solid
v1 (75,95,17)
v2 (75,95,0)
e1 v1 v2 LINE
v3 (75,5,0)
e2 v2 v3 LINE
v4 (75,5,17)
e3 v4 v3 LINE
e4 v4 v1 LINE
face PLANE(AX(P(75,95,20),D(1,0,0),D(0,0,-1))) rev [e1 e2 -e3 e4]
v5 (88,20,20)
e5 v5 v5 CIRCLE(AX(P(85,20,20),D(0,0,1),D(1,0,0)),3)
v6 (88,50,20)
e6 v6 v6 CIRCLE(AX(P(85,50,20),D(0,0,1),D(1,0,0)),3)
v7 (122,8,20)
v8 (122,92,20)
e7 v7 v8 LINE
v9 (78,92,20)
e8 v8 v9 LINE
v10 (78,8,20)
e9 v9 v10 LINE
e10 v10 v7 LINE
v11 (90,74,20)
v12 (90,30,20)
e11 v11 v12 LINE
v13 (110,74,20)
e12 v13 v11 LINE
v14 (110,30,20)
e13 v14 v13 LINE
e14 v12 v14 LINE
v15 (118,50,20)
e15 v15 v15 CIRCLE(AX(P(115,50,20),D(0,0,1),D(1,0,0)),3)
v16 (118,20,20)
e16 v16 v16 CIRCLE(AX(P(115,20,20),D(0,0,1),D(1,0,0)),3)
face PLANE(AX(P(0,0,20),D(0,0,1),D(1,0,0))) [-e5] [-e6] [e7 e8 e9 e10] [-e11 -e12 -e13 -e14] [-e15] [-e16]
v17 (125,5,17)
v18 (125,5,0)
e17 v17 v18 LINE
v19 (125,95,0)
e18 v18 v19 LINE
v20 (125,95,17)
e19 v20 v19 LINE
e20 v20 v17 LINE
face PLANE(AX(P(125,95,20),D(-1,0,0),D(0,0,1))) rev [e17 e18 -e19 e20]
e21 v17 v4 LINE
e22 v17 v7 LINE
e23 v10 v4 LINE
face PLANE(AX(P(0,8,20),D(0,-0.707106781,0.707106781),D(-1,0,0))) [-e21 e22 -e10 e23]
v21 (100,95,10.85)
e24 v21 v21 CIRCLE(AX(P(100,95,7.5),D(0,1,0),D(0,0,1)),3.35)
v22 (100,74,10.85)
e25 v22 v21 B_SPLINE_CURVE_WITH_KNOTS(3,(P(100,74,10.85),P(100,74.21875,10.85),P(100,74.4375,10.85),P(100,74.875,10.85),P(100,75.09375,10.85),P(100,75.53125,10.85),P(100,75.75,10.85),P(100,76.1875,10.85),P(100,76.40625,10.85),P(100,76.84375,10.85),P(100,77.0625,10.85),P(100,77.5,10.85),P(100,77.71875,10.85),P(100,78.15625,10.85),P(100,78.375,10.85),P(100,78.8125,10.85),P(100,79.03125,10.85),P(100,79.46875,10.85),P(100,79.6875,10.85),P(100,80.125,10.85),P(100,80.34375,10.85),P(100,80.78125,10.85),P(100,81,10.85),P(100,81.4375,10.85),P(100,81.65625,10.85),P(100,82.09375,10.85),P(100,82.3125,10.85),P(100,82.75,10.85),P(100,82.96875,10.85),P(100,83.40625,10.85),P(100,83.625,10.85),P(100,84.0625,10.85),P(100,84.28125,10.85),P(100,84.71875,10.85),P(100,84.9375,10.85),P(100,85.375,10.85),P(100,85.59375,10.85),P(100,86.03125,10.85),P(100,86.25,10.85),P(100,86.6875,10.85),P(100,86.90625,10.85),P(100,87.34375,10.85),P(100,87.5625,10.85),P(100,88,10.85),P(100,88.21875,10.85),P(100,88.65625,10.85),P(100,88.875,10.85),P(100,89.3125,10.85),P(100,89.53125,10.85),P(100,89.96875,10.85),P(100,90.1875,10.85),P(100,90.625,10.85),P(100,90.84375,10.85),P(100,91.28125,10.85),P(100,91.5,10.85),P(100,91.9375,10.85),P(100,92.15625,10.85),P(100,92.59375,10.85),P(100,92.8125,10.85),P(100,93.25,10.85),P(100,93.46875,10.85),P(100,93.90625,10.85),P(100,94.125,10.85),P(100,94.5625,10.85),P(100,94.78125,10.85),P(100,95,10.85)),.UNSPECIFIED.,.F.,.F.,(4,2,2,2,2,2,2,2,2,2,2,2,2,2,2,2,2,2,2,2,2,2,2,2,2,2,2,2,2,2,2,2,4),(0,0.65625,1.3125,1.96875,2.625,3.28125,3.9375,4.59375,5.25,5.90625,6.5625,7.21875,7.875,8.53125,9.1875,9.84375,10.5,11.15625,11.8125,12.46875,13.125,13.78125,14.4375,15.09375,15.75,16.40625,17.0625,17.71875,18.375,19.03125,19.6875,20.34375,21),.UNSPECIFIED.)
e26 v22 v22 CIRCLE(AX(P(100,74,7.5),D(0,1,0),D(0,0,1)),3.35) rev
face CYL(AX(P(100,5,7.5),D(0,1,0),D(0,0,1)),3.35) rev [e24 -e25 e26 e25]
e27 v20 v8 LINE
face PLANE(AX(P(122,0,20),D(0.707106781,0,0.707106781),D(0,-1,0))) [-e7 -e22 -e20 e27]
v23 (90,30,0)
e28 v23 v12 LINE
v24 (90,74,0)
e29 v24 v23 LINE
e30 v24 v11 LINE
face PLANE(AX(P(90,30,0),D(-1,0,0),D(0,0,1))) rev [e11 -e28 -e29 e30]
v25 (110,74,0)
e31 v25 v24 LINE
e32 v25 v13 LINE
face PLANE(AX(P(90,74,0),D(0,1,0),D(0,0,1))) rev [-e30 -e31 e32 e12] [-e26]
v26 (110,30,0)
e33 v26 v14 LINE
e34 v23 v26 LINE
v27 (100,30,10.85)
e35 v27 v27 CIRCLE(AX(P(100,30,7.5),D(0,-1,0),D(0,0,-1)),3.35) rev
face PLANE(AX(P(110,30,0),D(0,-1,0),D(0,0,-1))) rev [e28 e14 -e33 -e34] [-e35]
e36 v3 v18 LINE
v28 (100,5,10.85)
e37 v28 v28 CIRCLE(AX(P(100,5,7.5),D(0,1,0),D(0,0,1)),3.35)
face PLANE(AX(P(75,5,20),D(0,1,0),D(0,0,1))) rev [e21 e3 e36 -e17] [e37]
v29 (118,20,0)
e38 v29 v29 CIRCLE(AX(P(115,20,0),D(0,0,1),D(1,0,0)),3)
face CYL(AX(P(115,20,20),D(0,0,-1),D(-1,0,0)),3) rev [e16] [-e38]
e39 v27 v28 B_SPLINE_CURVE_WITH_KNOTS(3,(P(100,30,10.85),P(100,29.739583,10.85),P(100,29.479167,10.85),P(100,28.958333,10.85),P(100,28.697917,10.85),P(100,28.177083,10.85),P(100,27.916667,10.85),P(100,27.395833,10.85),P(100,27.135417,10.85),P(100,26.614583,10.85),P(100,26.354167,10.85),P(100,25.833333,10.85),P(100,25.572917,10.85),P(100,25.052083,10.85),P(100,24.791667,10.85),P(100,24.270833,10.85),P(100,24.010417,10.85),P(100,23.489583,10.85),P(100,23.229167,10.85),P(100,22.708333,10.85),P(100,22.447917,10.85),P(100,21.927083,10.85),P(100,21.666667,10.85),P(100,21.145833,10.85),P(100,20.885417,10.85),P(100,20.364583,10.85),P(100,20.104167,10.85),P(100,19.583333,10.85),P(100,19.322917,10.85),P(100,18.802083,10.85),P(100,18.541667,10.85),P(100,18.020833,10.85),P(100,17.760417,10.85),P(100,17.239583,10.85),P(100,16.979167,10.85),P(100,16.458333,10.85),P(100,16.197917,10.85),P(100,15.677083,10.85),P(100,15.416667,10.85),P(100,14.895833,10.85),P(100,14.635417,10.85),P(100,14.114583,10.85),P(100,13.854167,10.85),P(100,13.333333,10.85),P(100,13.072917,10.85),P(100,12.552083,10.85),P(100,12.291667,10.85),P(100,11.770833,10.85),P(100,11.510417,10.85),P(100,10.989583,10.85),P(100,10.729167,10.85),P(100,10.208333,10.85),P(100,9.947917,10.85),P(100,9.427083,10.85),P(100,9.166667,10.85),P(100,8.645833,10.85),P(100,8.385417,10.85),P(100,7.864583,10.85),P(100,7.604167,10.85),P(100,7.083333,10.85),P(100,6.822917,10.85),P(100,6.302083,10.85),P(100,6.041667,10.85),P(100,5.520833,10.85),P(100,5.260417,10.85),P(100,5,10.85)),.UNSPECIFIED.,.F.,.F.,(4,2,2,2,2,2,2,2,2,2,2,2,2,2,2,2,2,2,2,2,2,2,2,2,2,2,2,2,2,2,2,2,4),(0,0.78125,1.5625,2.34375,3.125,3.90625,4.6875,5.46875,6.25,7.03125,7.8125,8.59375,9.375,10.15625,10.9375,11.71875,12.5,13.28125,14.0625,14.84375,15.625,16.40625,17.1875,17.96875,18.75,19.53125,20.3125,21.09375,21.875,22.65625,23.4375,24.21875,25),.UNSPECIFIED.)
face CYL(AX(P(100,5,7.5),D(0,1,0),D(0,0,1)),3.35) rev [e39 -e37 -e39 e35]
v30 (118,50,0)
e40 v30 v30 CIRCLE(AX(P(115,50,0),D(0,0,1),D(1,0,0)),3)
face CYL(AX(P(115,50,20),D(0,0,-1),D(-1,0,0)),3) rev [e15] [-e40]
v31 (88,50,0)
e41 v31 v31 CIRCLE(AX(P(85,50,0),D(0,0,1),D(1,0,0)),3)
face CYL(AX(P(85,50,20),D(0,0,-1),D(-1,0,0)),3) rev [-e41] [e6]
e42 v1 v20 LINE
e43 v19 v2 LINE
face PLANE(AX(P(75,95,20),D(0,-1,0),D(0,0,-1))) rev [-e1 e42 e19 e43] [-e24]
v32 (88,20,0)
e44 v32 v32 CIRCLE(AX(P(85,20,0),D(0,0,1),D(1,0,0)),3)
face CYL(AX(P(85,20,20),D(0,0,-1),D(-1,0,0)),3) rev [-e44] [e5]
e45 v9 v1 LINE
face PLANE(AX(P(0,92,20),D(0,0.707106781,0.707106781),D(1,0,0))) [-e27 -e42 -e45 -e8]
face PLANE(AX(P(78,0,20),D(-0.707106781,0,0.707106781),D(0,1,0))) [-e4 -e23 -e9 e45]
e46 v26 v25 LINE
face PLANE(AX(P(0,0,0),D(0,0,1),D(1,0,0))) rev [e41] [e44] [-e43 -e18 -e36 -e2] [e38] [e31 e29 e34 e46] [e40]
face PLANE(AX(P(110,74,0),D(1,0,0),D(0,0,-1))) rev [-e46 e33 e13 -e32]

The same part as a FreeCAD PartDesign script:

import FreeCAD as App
import Part
import Sketcher
Q = App.Units.Quantity


def edges_at(feature, points):
    """Names of the edges that pass closest to the given points."""
    edges = feature.Shape.Edges
    near = lambda p: min(range(len(edges)), key=lambda i: edges[i].distToShape(Part.Vertex(*p))[0])
    return sorted({f"Edge{near(p) + 1}" for p in points})

doc = App.newDocument("Part")
body = doc.addObject("PartDesign::Body", "Body")

# Sketch on XY plane
sketch1 = body.newObject("Sketcher::SketchObject", "Sketch")
sketch1.AttachmentSupport = (doc.getObject("XY_Plane"), [""])
sketch1.MapMode = "FlatFace"
sketch1.addGeometry([
    Part.LineSegment(App.Vector(75, 95, 0), App.Vector(75, 5, 0)),  # 0
    Part.LineSegment(App.Vector(75, 5, 0), App.Vector(125, 5, 0)),  # 1
    Part.LineSegment(App.Vector(125, 5, 0), App.Vector(125, 95, 0)),  # 2
    Part.LineSegment(App.Vector(125, 95, 0), App.Vector(75, 95, 0)),  # 3
    Part.Circle(App.Vector(85, 20, 0), App.Vector(0, 0, 1), 3),  # 4
    Part.Circle(App.Vector(115, 20, 0), App.Vector(0, 0, 1), 3),  # 5
    Part.Circle(App.Vector(85, 50, 0), App.Vector(0, 0, 1), 3),  # 6
    Part.Circle(App.Vector(115, 50, 0), App.Vector(0, 0, 1), 3),  # 7
], False)
sketch1.addConstraint([
    Sketcher.Constraint("Coincident", 0, 2, 1, 1),
    Sketcher.Constraint("Coincident", 1, 2, 2, 1),
    Sketcher.Constraint("Coincident", 2, 2, 3, 1),
    Sketcher.Constraint("Coincident", 3, 2, 0, 1),
    Sketcher.Constraint("Vertical", 0),
    Sketcher.Constraint("Horizontal", 1),
    Sketcher.Constraint("Vertical", 2),
    Sketcher.Constraint("Horizontal", 3),
    Sketcher.Constraint("Equal", 4, 5),
    Sketcher.Constraint("Equal", 5, 6),
    Sketcher.Constraint("Equal", 6, 7),
    Sketcher.Constraint("Horizontal", 4, 3, 5, 3),
    Sketcher.Constraint("Horizontal", 6, 3, 7, 3),
    Sketcher.Constraint("Vertical", 4, 3, 6, 3),
    Sketcher.Constraint("Vertical", 5, 3, 7, 3),
    Sketcher.Constraint("Diameter", 4, Q("6 mm")),
    Sketcher.Constraint("DistanceX", 1, 1, 1, 2, Q("50 mm")),
    Sketcher.Constraint("DistanceY", 0, 2, 0, 1, Q("90 mm")),
    Sketcher.Constraint("DistanceX", -1, 1, 4, 3, Q("85 mm")),
    Sketcher.Constraint("DistanceY", -1, 1, 4, 3, Q("20 mm")),
    Sketcher.Constraint("DistanceX", -1, 1, 5, 3, Q("115 mm")),
    Sketcher.Constraint("DistanceY", -1, 1, 6, 3, Q("50 mm")),
    Sketcher.Constraint("DistanceX", -1, 1, 0, 2, Q("75 mm")),
    Sketcher.Constraint("DistanceY", -1, 1, 0, 2, Q("5 mm")),
])
pad1 = body.newObject("PartDesign::Pad", "Pad")
pad1.Profile = sketch1
pad1.Length = 20

# Sketch on XZ plane
sketch2 = body.newObject("Sketcher::SketchObject", "Sketch001")
sketch2.AttachmentSupport = (doc.getObject("XZ_Plane"), [""])
sketch2.MapMode = "FlatFace"
sketch2.AttachmentOffset = App.Placement(App.Vector(0, 0, -95), App.Rotation())
sketch2.addGeometry(Part.Circle(App.Vector(100, 7.5, 0), App.Vector(0, 0, 1), 3.4), False)
sketch2.addConstraint([
    Sketcher.Constraint("Diameter", 0, Q("6.7 mm")),
    Sketcher.Constraint("DistanceX", -1, 1, 0, 3, Q("100 mm")),
    Sketcher.Constraint("DistanceY", -1, 1, 0, 3, Q("7.5 mm")),
])
pocket1 = body.newObject("PartDesign::Pocket", "Pocket")
pocket1.Profile = sketch2
pocket1.Type = "ThroughAll"
pocket1.Reversed = True

# Sketch on XY plane
sketch3 = body.newObject("Sketcher::SketchObject", "Sketch002")
sketch3.AttachmentSupport = (doc.getObject("XY_Plane"), [""])
sketch3.MapMode = "FlatFace"
sketch3.AttachmentOffset = App.Placement(App.Vector(0, 0, 20), App.Rotation())
sketch3.addGeometry([
    Part.LineSegment(App.Vector(90, 74, 0), App.Vector(90, 30, 0)),
    Part.LineSegment(App.Vector(90, 30, 0), App.Vector(110, 30, 0)),
    Part.LineSegment(App.Vector(110, 30, 0), App.Vector(110, 74, 0)),
    Part.LineSegment(App.Vector(110, 74, 0), App.Vector(90, 74, 0)),
], False)
sketch3.addConstraint([
    Sketcher.Constraint("Coincident", 0, 2, 1, 1),
    Sketcher.Constraint("Coincident", 1, 2, 2, 1),
    Sketcher.Constraint("Coincident", 2, 2, 3, 1),
    Sketcher.Constraint("Coincident", 3, 2, 0, 1),
    Sketcher.Constraint("Vertical", 0),
    Sketcher.Constraint("Horizontal", 1),
    Sketcher.Constraint("Vertical", 2),
    Sketcher.Constraint("Horizontal", 3),
    Sketcher.Constraint("DistanceX", 1, 1, 1, 2, Q("20 mm")),
    Sketcher.Constraint("DistanceY", 0, 2, 0, 1, Q("44 mm")),
    Sketcher.Constraint("DistanceX", -1, 1, 0, 2, Q("90 mm")),
    Sketcher.Constraint("DistanceY", -1, 1, 0, 2, Q("30 mm")),
])
pocket2 = body.newObject("PartDesign::Pocket", "Pocket001")
pocket2.Profile = sketch3
pocket2.Type = "ThroughAll"
doc.recompute()

chamfer = body.newObject("PartDesign::Chamfer", "Chamfer")
chamfer.Base = (pocket2, edges_at(pocket2, [
    (75, 50, 20),
    (100, 5, 20),
    (125, 50, 20),
    (100, 95, 20),
]))
chamfer.Size = 3

doc.recompute()
